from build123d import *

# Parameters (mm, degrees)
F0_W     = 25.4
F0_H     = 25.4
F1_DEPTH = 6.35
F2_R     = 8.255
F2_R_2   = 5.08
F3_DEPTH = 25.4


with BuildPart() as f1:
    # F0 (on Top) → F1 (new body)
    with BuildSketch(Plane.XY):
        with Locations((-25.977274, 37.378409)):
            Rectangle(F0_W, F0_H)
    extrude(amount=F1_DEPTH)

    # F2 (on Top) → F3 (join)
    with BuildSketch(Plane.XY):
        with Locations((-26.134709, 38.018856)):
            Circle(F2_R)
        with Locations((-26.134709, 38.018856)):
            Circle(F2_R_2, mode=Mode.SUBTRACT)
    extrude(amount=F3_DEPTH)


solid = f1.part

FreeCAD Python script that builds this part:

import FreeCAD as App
import Part
import Sketcher

V = App.Vector
Q = App.Units.Quantity


def add_polygon(sketch, points):
    """Adds a closed chain of lines whose ends are joined by coincident constraints."""
    first, n = sketch.GeometryCount, len(points)
    for a, b in zip(points, points[1:] + points[:1]):
        sketch.addGeometry(Part.LineSegment(App.Vector(*a, 0), App.Vector(*b, 0)), False)
    for i in range(n):
        sketch.addConstraint(Sketcher.Constraint("Coincident", first + i, 2, first + (i + 1) % n, 1))

doc = App.newDocument("Part")
body = doc.addObject("PartDesign::Body", "Body")

# Sketch on XY plane
sketch1 = body.newObject("Sketcher::SketchObject", "Sketch")
sketch1.AttachmentSupport = (doc.getObject("XY_Plane"), [""])
sketch1.MapMode = "FlatFace"
add_polygon(sketch1, [(-38.677274, 50.078409), (-38.677274, 24.678409), (-13.277274, 24.678409), (-13.277274, 50.078409)])  # lines 0-3
sketch1.addConstraint(Sketcher.Constraint("Vertical", 0))
sketch1.addConstraint(Sketcher.Constraint("Horizontal", 1))
sketch1.addConstraint(Sketcher.Constraint("Vertical", 2))
sketch1.addConstraint(Sketcher.Constraint("Horizontal", 3))
sketch1.addConstraint(Sketcher.Constraint("Equal", 3, 0))
sketch1.addConstraint(Sketcher.Constraint("DistanceX", 1, 1, 1, 2, Q("1 in")))
sketch1.addConstraint(Sketcher.Constraint("DistanceY", -1, 1, 0, 2, 24.678409))
sketch1.addConstraint(Sketcher.Constraint("DistanceX", 0, 2, -1, 1, 38.677274))
pad1 = body.newObject("PartDesign::Pad", "Pad")
pad1.Profile = sketch1
pad1.Length = Q("0.25 in")

# Sketch on XY plane
sketch2 = body.newObject("Sketcher::SketchObject", "Sketch001")
sketch2.AttachmentSupport = (doc.getObject("XY_Plane"), [""])
sketch2.MapMode = "FlatFace"
sketch2.addGeometry(Part.Circle(V(-26.134709, 38.018856, 0), V(0, 0, 1), 8.255), False)
sketch2.addGeometry(Part.Circle(V(-26.134709, 38.018856, 0), V(0, 0, 1), 5.08), False)
sketch2.addConstraint(Sketcher.Constraint("Coincident", 1, 3, 0, 3))
sketch2.addConstraint(Sketcher.Constraint("Diameter", 1, Q("0.4 in")))
sketch2.addConstraint(Sketcher.Constraint("Diameter", 0, Q("0.65 in")))
sketch2.addConstraint(Sketcher.Constraint("DistanceX", 0, 3, -1, 1, 26.134709))
sketch2.addConstraint(Sketcher.Constraint("DistanceY", -1, 1, 0, 3, 38.018856))
pad2 = body.newObject("PartDesign::Pad", "Pad001")
pad2.Profile = sketch2
pad2.Length = Q("1 in")

doc.recompute()
